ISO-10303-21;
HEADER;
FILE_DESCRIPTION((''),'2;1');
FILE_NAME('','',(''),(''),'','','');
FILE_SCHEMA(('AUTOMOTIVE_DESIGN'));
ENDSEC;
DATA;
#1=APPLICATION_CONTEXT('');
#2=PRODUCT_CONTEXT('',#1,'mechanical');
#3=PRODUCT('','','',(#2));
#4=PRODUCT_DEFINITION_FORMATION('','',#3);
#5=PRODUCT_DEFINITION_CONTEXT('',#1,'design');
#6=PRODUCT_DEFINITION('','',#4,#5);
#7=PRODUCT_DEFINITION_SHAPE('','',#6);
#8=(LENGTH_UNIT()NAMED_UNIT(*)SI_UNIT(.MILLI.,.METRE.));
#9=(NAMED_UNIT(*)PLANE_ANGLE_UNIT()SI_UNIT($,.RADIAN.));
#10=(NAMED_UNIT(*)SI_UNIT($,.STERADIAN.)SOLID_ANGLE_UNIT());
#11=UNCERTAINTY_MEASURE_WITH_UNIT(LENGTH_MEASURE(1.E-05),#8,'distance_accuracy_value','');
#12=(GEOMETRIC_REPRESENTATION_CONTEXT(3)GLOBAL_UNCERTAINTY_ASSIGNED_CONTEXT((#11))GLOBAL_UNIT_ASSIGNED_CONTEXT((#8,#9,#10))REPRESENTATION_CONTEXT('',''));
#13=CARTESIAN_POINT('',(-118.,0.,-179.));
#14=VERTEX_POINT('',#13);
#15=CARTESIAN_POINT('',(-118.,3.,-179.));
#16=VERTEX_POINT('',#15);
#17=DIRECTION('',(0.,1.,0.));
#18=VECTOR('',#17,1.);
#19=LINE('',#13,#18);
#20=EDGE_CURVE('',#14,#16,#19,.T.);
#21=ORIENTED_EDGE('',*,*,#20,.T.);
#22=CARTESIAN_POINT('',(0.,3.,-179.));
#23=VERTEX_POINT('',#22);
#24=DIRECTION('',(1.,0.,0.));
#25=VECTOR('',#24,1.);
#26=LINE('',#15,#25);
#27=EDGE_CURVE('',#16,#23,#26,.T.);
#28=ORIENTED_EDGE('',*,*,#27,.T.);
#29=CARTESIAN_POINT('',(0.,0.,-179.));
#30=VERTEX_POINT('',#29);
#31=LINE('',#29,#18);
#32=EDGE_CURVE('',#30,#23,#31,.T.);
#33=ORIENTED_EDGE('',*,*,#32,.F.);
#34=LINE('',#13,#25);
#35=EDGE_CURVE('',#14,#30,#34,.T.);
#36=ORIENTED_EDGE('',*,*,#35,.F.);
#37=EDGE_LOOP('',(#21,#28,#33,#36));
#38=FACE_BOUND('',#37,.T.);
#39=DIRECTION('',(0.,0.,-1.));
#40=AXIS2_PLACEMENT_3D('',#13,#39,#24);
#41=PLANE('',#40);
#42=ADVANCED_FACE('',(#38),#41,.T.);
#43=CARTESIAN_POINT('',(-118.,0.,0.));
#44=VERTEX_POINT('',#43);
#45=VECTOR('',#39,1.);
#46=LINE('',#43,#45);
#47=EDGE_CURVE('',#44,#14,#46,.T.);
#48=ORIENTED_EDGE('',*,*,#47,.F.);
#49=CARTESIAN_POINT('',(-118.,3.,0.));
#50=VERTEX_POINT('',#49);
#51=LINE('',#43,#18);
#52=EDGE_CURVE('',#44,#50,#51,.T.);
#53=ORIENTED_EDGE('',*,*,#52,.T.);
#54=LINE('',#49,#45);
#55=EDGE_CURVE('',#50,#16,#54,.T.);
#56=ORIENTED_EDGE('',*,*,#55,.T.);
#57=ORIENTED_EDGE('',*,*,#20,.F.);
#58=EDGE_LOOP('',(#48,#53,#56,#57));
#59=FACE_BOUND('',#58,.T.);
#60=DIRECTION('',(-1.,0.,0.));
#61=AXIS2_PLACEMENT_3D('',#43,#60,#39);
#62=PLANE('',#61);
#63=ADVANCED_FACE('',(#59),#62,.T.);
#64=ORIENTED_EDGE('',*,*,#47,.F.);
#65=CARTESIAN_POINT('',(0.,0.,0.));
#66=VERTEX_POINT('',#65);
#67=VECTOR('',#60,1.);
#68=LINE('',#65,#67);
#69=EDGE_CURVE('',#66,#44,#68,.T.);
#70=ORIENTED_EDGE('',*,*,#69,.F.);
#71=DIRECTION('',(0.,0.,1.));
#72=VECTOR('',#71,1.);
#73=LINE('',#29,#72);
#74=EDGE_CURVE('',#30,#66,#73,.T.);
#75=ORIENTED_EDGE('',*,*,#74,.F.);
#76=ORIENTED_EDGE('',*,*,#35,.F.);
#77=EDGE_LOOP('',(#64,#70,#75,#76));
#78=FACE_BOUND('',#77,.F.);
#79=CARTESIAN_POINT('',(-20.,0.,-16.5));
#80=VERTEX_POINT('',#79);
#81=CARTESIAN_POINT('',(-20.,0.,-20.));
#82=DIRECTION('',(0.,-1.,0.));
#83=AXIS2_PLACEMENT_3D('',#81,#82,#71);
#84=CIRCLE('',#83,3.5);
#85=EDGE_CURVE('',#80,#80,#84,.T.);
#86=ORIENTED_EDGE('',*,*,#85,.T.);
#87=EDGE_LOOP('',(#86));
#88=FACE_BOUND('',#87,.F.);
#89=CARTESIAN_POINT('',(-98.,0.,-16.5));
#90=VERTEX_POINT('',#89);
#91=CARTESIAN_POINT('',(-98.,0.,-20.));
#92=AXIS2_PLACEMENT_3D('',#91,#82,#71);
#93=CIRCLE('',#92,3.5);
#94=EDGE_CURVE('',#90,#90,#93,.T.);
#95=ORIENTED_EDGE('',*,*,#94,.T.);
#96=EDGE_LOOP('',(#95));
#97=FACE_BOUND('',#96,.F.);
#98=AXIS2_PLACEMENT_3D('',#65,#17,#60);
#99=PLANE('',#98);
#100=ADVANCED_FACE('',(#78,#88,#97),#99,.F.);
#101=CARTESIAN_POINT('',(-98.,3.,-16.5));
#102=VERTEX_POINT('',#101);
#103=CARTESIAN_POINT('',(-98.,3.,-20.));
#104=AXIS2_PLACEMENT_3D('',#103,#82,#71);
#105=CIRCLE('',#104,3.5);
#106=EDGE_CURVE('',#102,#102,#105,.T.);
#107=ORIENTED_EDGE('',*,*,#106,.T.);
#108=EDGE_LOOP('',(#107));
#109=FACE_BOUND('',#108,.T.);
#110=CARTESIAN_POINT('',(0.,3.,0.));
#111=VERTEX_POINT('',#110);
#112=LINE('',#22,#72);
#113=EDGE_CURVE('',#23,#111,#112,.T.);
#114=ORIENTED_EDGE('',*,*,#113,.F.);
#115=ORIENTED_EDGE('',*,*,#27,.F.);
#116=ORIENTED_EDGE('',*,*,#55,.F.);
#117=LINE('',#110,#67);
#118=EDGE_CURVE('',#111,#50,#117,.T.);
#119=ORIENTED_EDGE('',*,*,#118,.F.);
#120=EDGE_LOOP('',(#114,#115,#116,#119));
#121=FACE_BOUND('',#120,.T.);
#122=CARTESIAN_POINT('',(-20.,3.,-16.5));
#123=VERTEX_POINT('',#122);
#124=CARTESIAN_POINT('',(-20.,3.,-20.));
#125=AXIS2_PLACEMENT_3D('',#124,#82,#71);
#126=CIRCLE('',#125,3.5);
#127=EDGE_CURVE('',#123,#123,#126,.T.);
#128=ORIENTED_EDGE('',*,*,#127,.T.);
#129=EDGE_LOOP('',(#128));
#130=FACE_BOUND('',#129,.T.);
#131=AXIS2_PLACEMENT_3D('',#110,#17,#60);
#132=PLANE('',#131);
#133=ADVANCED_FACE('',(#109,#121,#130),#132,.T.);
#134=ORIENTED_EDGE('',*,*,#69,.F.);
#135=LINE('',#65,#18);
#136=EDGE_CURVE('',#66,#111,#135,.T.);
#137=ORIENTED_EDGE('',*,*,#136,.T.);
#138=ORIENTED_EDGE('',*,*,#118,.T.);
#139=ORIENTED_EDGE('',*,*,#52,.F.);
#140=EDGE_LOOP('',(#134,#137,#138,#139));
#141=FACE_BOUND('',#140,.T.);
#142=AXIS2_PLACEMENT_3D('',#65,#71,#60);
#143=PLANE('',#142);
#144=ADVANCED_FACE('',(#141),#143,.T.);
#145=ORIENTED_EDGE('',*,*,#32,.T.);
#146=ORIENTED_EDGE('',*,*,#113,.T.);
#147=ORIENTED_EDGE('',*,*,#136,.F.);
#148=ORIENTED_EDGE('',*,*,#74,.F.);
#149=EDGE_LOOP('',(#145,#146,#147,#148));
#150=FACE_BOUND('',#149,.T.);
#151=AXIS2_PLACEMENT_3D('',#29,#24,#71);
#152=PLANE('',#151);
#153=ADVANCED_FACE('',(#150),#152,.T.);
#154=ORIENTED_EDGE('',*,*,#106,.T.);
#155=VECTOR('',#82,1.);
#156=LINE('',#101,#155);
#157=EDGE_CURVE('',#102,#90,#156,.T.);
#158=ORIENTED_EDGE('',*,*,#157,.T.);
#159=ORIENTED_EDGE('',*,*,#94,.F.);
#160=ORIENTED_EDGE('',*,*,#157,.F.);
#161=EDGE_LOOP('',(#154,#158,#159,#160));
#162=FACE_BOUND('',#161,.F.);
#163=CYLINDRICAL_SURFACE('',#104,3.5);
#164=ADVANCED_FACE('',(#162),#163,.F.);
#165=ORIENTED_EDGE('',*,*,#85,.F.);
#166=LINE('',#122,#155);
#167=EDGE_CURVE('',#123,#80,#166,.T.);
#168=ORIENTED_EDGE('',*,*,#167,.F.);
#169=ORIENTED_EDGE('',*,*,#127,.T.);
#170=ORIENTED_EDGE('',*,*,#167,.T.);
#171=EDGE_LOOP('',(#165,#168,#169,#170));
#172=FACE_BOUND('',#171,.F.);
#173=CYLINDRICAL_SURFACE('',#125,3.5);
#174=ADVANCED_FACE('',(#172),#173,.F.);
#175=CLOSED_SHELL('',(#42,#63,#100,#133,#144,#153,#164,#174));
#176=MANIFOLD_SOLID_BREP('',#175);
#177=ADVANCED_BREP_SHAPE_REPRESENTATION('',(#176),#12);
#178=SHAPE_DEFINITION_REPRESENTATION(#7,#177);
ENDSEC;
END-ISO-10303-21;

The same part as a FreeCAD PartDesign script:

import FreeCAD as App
import Part
import Sketcher

V = App.Vector


def add_polygon(sketch, points):
    """Adds a closed chain of lines whose ends are joined by coincident constraints."""
    first, n = sketch.GeometryCount, len(points)
    for a, b in zip(points, points[1:] + points[:1]):
        sketch.addGeometry(Part.LineSegment(App.Vector(*a, 0), App.Vector(*b, 0)), False)
    for i in range(n):
        sketch.addConstraint(Sketcher.Constraint("Coincident", first + i, 2, first + (i + 1) % n, 1))

doc = App.newDocument("Part")
body = doc.addObject("PartDesign::Body", "Body")

sketch1 = doc.addObject("Sketcher::SketchObject", "Sketch")
body.addObject(sketch1)
sketch1.AttachmentSupport = (doc.XZ_Plane, [""])
sketch1.MapMode = "FlatFace"
add_polygon(sketch1, [(-118, 0), (0, 0), (0, -179), (-118, -179)])
sketch1.addConstraint([
    Sketcher.Constraint("Horizontal", 0),
    Sketcher.Constraint("Vertical", 1),
    Sketcher.Constraint("Horizontal", 2),
    Sketcher.Constraint("Vertical", 3),
    Sketcher.Constraint("Coincident", 0, 2, -1, 1),
    Sketcher.Constraint("DistanceX", 0, 1, 0, 2, 118.0),
    Sketcher.Constraint("DistanceY", 1, 2, 1, 1, 179.0),
])
pad1 = doc.addObject("PartDesign::Pad", "Pad")
body.addObject(pad1)
pad1.Profile = sketch1
pad1.Length = 3
pad1.Reversed = True

sketch2 = doc.addObject("Sketcher::SketchObject", "Sketch001")
body.addObject(sketch2)
sketch2.AttachmentSupport = (doc.XZ_Plane, [""])
sketch2.MapMode = "FlatFace"
sketch2.AttachmentOffset = App.Placement(V(0, 0, -3), App.Rotation())
sketch2.addGeometry([
    Part.Circle(V(-20, -20, 0), V(0, 0, 1), 3.5),
    Part.Circle(V(-98, -20, 0), V(0, 0, 1), 3.5),
], False)
sketch2.addConstraint([
    Sketcher.Constraint("Equal", 0, 1),
    Sketcher.Constraint("Horizontal", 0, 3, 1, 3),
    Sketcher.Constraint("Diameter", 0, 7.0),
    Sketcher.Constraint("DistanceX", 0, 3, -1, 1, 20.0),
    Sketcher.Constraint("DistanceY", 0, 3, -1, 1, 20.0),
    Sketcher.Constraint("DistanceX", 1, 3, -1, 1, 98.0),
])
doc.recompute()
hole = doc.addObject("PartDesign::Hole", "Hole")
body.addObject(hole)
hole.Profile = sketch2
hole.ThreadType = "None"
hole.Diameter = 7
hole.DepthType = "ThroughAll"
hole.Reversed = True

doc.recompute()
